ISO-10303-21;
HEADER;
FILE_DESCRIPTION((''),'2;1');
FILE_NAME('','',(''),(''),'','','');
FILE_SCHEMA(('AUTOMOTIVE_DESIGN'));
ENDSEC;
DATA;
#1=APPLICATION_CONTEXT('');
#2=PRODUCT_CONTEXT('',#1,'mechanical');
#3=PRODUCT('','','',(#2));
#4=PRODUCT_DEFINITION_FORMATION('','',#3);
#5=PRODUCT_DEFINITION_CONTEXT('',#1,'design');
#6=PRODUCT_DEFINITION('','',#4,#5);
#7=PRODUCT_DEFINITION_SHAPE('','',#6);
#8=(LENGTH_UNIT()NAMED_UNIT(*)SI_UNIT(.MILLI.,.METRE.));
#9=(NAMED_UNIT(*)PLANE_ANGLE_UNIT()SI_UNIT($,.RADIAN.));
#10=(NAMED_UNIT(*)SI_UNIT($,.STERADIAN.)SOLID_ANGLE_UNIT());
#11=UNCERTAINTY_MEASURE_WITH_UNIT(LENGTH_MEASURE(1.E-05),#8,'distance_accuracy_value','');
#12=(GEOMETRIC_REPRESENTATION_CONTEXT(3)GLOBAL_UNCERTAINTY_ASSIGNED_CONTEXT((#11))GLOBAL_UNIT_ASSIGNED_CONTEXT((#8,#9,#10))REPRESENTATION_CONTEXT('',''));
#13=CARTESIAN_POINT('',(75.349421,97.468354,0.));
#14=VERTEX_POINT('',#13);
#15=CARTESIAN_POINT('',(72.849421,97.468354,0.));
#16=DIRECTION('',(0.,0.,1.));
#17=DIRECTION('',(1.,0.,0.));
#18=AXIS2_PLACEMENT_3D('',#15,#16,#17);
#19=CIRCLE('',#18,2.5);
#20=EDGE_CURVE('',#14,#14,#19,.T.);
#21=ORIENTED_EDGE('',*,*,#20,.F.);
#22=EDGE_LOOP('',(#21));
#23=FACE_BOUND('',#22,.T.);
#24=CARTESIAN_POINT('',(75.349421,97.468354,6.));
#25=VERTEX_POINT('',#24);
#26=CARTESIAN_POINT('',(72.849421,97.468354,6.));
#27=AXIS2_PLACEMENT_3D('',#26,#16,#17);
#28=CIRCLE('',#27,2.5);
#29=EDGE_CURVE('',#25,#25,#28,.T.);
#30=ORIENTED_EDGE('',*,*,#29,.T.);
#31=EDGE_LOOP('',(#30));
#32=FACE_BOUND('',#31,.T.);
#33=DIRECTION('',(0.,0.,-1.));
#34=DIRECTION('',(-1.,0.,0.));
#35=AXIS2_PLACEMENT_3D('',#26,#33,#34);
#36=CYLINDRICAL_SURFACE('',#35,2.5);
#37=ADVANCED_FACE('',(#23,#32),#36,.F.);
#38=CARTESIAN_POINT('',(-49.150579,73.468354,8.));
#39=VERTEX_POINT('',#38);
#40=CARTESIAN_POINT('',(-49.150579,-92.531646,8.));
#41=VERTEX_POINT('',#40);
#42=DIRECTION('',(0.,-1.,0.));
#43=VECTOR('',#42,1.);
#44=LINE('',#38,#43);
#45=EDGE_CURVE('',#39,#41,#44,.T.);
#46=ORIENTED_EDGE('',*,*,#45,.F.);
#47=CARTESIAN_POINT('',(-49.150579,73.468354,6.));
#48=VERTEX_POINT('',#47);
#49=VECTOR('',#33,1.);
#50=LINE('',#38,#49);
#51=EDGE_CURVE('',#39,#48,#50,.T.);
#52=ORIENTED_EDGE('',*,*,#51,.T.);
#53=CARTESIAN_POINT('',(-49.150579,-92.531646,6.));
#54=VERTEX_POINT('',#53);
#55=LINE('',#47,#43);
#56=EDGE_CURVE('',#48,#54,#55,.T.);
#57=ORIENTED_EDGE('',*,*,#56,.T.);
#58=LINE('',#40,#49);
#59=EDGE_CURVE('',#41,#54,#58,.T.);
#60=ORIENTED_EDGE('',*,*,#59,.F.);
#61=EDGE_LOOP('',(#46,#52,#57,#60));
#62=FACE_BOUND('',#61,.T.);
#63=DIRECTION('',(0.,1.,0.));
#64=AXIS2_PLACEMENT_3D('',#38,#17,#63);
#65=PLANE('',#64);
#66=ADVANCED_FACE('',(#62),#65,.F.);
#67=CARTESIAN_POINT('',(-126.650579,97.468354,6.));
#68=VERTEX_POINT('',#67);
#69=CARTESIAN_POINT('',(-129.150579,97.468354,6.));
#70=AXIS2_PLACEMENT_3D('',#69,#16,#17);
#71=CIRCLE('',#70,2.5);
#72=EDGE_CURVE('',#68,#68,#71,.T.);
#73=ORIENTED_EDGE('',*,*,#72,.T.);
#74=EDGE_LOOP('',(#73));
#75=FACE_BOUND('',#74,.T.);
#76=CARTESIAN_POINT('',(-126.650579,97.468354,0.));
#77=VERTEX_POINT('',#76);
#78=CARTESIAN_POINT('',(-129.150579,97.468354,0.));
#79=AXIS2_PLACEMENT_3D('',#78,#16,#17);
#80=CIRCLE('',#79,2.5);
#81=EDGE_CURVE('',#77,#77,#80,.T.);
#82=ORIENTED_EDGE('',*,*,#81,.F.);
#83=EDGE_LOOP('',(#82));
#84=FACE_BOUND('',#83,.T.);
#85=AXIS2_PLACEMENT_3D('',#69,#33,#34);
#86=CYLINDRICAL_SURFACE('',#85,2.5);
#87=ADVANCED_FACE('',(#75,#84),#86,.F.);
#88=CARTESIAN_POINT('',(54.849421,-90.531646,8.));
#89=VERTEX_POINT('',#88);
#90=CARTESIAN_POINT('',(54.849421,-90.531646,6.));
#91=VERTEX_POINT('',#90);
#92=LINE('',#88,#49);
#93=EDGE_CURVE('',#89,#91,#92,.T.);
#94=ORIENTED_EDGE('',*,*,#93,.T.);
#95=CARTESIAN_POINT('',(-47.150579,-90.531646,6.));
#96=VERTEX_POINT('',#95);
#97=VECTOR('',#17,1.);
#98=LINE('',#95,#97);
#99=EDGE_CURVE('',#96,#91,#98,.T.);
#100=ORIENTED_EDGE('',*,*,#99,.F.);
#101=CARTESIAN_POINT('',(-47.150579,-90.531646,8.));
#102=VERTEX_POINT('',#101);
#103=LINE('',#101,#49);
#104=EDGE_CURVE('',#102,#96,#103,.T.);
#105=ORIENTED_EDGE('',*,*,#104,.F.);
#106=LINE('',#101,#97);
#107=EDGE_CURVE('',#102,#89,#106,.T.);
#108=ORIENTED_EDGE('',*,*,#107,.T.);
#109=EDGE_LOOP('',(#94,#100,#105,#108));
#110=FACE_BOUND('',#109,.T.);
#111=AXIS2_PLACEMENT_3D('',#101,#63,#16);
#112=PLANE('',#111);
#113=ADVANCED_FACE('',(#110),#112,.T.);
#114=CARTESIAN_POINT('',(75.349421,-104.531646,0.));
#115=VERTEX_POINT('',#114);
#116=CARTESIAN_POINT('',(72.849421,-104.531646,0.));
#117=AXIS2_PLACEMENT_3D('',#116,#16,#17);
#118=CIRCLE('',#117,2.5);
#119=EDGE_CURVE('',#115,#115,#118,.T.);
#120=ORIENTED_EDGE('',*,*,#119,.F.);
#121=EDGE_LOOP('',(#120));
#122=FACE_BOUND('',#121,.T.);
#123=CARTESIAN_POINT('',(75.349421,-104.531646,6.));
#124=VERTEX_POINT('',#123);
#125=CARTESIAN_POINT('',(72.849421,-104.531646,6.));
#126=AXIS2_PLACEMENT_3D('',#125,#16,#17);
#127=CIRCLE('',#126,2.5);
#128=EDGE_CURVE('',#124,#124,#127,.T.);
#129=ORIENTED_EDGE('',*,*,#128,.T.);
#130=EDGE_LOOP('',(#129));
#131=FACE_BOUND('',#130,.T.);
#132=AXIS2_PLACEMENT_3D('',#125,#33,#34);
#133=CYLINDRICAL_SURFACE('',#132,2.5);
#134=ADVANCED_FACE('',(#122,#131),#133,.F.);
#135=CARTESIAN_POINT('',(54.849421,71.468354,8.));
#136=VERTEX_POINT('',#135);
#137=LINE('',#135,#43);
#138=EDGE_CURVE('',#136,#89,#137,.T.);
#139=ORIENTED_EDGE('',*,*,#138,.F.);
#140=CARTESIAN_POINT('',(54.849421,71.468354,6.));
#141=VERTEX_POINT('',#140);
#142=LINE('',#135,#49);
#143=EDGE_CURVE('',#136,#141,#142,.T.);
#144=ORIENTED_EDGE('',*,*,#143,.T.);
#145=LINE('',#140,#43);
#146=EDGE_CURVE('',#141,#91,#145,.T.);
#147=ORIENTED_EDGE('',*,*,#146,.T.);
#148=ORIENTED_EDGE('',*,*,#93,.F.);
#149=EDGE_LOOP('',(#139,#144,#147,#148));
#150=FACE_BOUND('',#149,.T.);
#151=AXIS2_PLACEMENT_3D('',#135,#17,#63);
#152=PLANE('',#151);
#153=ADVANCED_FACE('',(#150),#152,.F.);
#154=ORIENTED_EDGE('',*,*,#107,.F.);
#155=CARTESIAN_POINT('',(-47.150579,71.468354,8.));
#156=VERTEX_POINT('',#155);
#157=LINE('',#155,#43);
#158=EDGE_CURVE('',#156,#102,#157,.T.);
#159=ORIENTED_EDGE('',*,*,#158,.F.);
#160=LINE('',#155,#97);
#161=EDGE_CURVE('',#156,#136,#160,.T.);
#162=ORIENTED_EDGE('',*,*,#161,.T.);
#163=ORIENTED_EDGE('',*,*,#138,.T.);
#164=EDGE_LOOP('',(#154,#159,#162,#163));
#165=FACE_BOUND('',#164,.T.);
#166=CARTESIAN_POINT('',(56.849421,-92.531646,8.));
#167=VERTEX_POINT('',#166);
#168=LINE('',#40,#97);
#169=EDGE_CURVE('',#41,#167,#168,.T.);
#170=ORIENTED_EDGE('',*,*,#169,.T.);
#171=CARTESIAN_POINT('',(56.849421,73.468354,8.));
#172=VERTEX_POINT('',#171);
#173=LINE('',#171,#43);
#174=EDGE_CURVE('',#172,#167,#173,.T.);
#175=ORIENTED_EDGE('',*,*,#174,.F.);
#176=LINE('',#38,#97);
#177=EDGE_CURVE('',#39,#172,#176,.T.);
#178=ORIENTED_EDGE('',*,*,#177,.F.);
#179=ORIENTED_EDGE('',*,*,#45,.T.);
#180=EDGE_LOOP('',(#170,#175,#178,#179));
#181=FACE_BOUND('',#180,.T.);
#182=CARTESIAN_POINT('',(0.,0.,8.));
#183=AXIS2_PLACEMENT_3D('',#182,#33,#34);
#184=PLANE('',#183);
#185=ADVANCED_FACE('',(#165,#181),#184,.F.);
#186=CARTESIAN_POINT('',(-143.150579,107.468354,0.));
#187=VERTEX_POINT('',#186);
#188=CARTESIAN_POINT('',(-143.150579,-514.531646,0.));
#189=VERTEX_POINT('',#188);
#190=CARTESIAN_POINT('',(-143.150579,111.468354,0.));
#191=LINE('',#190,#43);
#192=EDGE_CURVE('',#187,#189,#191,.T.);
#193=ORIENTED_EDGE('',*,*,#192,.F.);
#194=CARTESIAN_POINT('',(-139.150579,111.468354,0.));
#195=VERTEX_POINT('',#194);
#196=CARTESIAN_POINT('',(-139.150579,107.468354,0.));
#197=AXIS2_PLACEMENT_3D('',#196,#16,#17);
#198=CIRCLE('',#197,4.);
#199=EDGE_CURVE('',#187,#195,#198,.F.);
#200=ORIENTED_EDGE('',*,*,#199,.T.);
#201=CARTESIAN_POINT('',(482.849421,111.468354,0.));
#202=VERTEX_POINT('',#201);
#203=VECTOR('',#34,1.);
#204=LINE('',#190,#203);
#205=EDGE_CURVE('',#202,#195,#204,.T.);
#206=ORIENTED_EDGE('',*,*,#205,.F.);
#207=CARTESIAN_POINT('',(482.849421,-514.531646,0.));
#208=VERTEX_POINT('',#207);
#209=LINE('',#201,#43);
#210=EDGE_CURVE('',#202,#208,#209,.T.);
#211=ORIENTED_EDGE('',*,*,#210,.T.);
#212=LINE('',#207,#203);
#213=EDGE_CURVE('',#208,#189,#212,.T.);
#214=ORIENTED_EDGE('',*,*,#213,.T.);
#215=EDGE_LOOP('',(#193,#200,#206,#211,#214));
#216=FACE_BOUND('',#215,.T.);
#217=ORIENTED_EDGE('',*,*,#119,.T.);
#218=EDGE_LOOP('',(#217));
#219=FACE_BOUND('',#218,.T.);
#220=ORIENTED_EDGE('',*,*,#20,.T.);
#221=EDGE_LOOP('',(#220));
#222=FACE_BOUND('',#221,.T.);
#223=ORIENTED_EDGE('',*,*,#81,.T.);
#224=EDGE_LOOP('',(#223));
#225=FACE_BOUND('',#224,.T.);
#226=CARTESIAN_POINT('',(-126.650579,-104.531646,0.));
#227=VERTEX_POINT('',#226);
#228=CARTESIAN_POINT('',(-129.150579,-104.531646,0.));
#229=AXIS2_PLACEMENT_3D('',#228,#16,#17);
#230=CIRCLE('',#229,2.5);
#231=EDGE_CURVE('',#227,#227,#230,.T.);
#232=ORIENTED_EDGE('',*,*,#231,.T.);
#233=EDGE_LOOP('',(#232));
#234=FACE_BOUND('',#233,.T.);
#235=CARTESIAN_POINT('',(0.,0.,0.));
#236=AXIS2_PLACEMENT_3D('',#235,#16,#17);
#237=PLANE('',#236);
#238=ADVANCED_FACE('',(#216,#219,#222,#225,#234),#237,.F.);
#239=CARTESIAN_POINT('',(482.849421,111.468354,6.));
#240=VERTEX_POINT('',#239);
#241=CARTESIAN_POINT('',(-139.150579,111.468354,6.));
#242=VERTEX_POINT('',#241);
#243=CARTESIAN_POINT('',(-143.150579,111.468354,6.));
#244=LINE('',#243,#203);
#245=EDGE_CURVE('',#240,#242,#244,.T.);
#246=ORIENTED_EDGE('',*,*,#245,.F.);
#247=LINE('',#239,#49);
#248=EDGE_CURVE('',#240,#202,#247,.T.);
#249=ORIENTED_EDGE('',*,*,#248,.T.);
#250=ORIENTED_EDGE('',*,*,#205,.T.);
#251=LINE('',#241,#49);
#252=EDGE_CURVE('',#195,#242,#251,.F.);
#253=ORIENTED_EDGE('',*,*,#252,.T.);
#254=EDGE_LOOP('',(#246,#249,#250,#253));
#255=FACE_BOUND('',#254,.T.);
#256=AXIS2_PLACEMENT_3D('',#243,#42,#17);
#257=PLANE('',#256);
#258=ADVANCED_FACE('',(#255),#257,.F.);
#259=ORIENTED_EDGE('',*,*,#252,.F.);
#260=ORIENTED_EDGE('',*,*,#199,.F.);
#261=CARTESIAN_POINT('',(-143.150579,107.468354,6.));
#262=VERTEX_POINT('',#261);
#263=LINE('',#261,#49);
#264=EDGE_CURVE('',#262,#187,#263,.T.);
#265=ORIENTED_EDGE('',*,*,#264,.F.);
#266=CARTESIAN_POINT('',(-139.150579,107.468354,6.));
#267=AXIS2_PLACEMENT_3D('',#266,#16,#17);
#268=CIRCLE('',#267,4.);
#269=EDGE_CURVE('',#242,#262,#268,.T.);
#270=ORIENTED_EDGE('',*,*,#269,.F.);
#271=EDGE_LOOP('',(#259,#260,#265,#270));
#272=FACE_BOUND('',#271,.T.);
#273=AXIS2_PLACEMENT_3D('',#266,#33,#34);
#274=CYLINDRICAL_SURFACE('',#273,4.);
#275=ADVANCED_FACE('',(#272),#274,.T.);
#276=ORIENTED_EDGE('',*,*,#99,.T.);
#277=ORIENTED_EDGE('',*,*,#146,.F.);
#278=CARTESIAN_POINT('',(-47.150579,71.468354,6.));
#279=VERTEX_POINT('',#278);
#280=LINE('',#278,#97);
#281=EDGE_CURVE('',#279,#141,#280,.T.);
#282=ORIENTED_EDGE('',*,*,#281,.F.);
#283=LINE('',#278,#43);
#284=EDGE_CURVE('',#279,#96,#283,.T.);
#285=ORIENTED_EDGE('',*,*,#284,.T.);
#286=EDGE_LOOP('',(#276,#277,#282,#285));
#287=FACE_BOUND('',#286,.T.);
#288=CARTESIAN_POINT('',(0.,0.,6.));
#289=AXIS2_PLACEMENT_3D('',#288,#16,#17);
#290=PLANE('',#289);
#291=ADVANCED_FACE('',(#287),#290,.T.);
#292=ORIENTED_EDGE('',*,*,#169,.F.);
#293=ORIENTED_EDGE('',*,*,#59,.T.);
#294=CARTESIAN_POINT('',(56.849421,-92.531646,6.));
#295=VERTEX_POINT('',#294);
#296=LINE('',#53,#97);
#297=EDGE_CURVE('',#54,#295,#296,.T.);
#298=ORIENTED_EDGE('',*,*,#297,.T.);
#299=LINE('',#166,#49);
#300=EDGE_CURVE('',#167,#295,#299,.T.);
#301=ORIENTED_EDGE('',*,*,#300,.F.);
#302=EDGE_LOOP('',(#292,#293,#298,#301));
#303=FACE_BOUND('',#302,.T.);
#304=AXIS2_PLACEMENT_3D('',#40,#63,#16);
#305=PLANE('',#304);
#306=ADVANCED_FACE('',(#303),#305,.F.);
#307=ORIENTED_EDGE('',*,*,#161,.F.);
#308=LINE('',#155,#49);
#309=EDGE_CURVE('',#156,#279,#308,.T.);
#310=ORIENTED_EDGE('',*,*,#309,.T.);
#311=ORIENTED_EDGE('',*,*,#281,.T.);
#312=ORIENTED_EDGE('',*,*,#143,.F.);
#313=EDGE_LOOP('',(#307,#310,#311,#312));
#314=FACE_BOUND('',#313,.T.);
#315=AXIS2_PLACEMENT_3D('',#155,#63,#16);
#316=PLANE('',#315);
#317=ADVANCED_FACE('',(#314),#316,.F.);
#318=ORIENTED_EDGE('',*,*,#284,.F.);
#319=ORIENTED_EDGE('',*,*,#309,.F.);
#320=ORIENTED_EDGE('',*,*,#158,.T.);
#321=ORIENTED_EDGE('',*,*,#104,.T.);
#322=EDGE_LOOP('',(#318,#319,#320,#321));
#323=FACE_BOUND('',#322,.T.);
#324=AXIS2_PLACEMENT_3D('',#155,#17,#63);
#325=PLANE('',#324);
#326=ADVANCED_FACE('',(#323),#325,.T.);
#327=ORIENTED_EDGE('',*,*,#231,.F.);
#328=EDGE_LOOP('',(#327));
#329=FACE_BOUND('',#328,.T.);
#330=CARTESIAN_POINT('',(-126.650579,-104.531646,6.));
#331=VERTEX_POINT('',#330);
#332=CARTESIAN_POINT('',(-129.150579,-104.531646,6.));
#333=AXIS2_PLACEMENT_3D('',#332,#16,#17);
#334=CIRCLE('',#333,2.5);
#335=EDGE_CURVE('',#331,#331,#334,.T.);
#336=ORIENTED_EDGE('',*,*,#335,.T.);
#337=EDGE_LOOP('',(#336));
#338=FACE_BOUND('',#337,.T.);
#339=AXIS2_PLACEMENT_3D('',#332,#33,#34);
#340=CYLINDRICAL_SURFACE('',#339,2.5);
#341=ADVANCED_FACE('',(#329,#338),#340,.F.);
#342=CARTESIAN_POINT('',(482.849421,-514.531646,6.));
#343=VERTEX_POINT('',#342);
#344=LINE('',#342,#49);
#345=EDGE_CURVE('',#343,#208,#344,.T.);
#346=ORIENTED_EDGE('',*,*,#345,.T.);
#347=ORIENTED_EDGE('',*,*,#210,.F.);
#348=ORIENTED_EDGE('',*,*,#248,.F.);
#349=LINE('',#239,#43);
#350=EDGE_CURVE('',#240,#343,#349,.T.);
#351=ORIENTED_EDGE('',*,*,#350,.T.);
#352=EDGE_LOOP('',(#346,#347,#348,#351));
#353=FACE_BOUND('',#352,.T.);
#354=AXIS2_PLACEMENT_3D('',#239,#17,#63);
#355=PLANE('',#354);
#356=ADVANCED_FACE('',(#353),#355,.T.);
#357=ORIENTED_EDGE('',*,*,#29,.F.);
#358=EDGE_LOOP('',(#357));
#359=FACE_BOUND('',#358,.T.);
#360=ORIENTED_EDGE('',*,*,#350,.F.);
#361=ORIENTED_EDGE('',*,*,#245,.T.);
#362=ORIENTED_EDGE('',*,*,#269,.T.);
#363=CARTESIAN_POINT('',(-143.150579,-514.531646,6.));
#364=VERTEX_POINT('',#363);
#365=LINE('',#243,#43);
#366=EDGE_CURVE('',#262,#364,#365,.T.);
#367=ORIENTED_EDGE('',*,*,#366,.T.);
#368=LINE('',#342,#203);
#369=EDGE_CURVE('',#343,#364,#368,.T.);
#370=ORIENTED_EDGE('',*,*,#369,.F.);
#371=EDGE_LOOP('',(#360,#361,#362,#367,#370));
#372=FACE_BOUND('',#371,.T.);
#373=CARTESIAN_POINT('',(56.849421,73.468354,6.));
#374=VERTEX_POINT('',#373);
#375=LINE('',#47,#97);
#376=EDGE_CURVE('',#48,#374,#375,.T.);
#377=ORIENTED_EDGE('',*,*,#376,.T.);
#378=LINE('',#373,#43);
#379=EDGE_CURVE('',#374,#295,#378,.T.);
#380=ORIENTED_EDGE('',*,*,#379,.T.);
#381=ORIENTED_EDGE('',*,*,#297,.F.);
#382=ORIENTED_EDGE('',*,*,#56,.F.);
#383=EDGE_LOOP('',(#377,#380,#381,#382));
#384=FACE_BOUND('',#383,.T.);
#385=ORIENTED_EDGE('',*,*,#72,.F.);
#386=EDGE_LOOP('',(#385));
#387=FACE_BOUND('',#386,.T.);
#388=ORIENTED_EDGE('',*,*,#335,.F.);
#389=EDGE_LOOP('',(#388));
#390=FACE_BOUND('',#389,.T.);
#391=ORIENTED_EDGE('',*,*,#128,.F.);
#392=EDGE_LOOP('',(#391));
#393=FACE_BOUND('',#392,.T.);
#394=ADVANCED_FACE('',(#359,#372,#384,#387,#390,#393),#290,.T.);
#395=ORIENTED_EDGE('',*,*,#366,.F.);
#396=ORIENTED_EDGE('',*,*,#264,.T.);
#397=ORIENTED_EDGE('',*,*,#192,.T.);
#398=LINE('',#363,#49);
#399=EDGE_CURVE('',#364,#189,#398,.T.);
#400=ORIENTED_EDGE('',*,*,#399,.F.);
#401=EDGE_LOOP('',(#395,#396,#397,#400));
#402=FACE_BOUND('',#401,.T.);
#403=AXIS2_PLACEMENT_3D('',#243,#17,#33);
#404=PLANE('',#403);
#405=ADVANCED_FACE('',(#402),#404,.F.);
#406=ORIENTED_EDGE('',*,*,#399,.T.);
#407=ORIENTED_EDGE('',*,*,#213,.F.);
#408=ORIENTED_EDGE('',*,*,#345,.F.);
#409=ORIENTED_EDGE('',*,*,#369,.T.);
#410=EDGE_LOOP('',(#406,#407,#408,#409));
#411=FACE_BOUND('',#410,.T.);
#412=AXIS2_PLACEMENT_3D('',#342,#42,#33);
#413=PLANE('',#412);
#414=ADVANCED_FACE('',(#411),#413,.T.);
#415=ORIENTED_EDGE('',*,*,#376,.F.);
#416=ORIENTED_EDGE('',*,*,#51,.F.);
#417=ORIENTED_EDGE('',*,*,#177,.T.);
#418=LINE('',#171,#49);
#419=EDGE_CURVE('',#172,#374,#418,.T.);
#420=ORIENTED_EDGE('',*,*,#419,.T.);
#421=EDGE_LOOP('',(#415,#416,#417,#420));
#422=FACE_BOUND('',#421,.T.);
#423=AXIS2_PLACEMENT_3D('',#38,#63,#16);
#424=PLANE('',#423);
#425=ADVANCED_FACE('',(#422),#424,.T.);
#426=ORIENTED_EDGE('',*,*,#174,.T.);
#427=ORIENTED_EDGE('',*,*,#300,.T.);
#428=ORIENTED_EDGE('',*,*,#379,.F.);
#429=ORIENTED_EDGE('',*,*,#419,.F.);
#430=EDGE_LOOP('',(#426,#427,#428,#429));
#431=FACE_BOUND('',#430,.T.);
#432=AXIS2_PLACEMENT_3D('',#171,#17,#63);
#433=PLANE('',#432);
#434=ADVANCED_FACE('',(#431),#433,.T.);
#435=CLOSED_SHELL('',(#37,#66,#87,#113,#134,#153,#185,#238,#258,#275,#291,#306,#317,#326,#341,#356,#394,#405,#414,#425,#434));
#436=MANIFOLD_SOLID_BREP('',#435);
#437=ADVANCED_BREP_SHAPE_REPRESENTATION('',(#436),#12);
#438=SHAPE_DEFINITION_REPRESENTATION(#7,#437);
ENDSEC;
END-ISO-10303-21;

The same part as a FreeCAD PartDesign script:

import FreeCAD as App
import Part
import Sketcher
Q = App.Units.Quantity


def edges_at(feature, points):
    """Names of the edges that pass closest to the given points."""
    edges = feature.Shape.Edges
    near = lambda p: min(range(len(edges)), key=lambda i: edges[i].distToShape(Part.Vertex(*p))[0])
    return sorted({f"Edge{near(p) + 1}" for p in points})


def add_polygon(sketch, points):
    """Adds a closed chain of lines whose ends are joined by coincident constraints."""
    first, n = sketch.GeometryCount, len(points)
    for a, b in zip(points, points[1:] + points[:1]):
        sketch.addGeometry(Part.LineSegment(App.Vector(*a, 0), App.Vector(*b, 0)), False)
    for i in range(n):
        sketch.addConstraint(Sketcher.Constraint("Coincident", first + i, 2, first + (i + 1) % n, 1))

doc = App.newDocument("Part")
params = doc.addObject("Spreadsheet::Sheet", "Params")
for row, (alias, value) in enumerate([
    ("sketch1_diameter", "5 mm"),
    ("sketch1_width", "230 mm"),
    ("pad1_length", "6 mm"),
    ("fillet_radius", "4 mm"),
    ("sketch2_width", "106 mm"),
    ("sketch2_width2", "102 mm"),
    ("sketch2_height", "166 mm"),
    ("sketch2_height2", "162 mm"),
    ("pad2_length", "2 mm"),
    ("sketch3_width", "400 mm"),
    ("sketch3_width2", "626 mm"),
    ("pad3_length", "6 mm"),
], start=1):
    params.set(f"A{row}", alias)
    params.set(f"B{row}", "=" + value)
    params.setAlias(f"B{row}", alias)

body = doc.addObject("PartDesign::Body", "Body")

sketch1 = body.newObject("Sketcher::SketchObject", "Sketch")
sketch1.AttachmentSupport = (doc.getObject("XY_Plane"), [""])
sketch1.MapMode = "FlatFace"
add_polygon(sketch1, [(-143.2, 111.5), (-143.2, -118.5), (86.8, -118.5), (86.8, 111.5)])
sketch1.addGeometry(Part.Circle(App.Vector(-129.2, -104.5, 0), App.Vector(0, 0, 1), 2.5), False)
sketch1.addGeometry(Part.Circle(App.Vector(72.8, -104.5, 0), App.Vector(0, 0, 1), 2.5), False)
sketch1.addGeometry(Part.Circle(App.Vector(-129.2, 97.5, 0), App.Vector(0, 0, 1), 2.5), False)
sketch1.addGeometry(Part.Circle(App.Vector(72.8, 97.5, 0), App.Vector(0, 0, 1), 2.5), False)
sketch1.addConstraint([
    Sketcher.Constraint("Vertical", 0),
    Sketcher.Constraint("Horizontal", 1),
    Sketcher.Constraint("Vertical", 2),
    Sketcher.Constraint("Horizontal", 3),
    Sketcher.Constraint("Equal", 4, 5),
    Sketcher.Constraint("Equal", 5, 6),
    Sketcher.Constraint("Equal", 6, 7),
    Sketcher.Constraint("Horizontal", 4, 3, 5, 3),
    Sketcher.Constraint("Horizontal", 6, 3, 7, 3),
    Sketcher.Constraint("Vertical", 4, 3, 6, 3),
    Sketcher.Constraint("Vertical", 5, 3, 7, 3),
    Sketcher.Constraint("Equal", 3, 0),
    Sketcher.Constraint("Diameter", 4, Q("5 mm")),
    Sketcher.Constraint("DistanceX", 1, 1, 1, 2, Q("230 mm")),
    Sketcher.Constraint("DistanceX", 4, 3, 5, 3, Q("202 mm")),
    Sketcher.Constraint("DistanceY", 4, 3, 6, 3, Q("202 mm")),
    Sketcher.Constraint("DistanceX", 0, 2, 4, 3, Q("14 mm")),
    Sketcher.Constraint("DistanceY", 0, 2, 4, 3, Q("14 mm")),
    Sketcher.Constraint("DistanceX", 4, 3, -1, 1, Q("129.150579 mm")),
    Sketcher.Constraint("DistanceY", 4, 3, -1, 1, Q("104.531646 mm")),
])
sketch1.setExpression("Constraints[16]", "Params.sketch1_diameter")
sketch1.setExpression("Constraints[17]", "Params.sketch1_width")
pad1 = body.newObject("PartDesign::Pad", "Pad")
pad1.Profile = sketch1
pad1.setExpression("Length", "Params.pad1_length")
doc.recompute()

fillet = body.newObject("PartDesign::Fillet", "Fillet")
fillet.Base = (pad1, edges_at(pad1, [
    (-143.151, 111.468, 3),
    (86.849, 111.468, 3),
    (86.849, -118.532, 3),
    (-143.151, -118.532, 3),
]))
fillet.setExpression("Radius", "Params.fillet_radius")

sketch2 = body.newObject("Sketcher::SketchObject", "Sketch001")
sketch2.AttachmentSupport = (doc.getObject("XY_Plane"), [""])
sketch2.MapMode = "FlatFace"
sketch2.AttachmentOffset = App.Placement(App.Vector(0, 0, 6), App.Rotation())
add_polygon(sketch2, [(-49, 73), (-49, -93), (57, -93), (57, 73)])
add_polygon(sketch2, [(55, -91), (-47, -91), (-47, 71), (55, 71)])
sketch2.addConstraint([
    Sketcher.Constraint("Vertical", 0),
    Sketcher.Constraint("Horizontal", 1),
    Sketcher.Constraint("Vertical", 2),
    Sketcher.Constraint("Horizontal", 3),
    Sketcher.Constraint("Horizontal", 4),
    Sketcher.Constraint("Vertical", 5),
    Sketcher.Constraint("Horizontal", 6),
    Sketcher.Constraint("Vertical", 7),
    Sketcher.Constraint("DistanceX", 1, 1, 1, 2, Q("106 mm")),
    Sketcher.Constraint("DistanceX", 4, 2, 4, 1, Q("102 mm")),
    Sketcher.Constraint("DistanceY", 0, 2, 0, 1, Q("166 mm")),
    Sketcher.Constraint("DistanceY", 5, 1, 5, 2, Q("162 mm")),
    Sketcher.Constraint("DistanceX", 0, 2, 4, 2, Q("2 mm")),
    Sketcher.Constraint("DistanceY", 0, 2, 4, 2, Q("2 mm")),
    Sketcher.Constraint("DistanceX", 0, 2, -1, 1, Q("49.150579 mm")),
    Sketcher.Constraint("DistanceY", 0, 2, -1, 1, Q("92.531646 mm")),
])
sketch2.setExpression("Constraints[16]", "Params.sketch2_width")
sketch2.setExpression("Constraints[17]", "Params.sketch2_width2")
sketch2.setExpression("Constraints[18]", "Params.sketch2_height")
sketch2.setExpression("Constraints[19]", "Params.sketch2_height2")
pad2 = body.newObject("PartDesign::Pad", "Pad001")
pad2.Profile = sketch2
pad2.setExpression("Length", "Params.pad2_length")

sketch3 = body.newObject("Sketcher::SketchObject", "Sketch002")
sketch3.AttachmentSupport = (doc.getObject("XY_Plane"), [""])
sketch3.MapMode = "FlatFace"
add_polygon(sketch3, [(83, 111), (483, 111), (483, -515), (-143, -515), (-143, -115), (83, -115)])
sketch3.addConstraint([
    Sketcher.Constraint("Horizontal", 0),
    Sketcher.Constraint("Vertical", 1),
    Sketcher.Constraint("Horizontal", 2),
    Sketcher.Constraint("Vertical", 3),
    Sketcher.Constraint("Horizontal", 4),
    Sketcher.Constraint("Vertical", 5),
    Sketcher.Constraint("Equal", 2, 1),
    Sketcher.Constraint("Equal", 0, 3),
    Sketcher.Constraint("DistanceX", 0, 1, 0, 2, Q("400 mm")),
    Sketcher.Constraint("DistanceX", 2, 2, 2, 1, Q("626 mm")),
    Sketcher.Constraint("DistanceX", -1, 1, 0, 2, Q("482.849421 mm")),
    Sketcher.Constraint("DistanceY", -1, 1, 0, 2, Q("111.468354 mm")),
])
sketch3.setExpression("Constraints[14]", "Params.sketch3_width")
sketch3.setExpression("Constraints[15]", "Params.sketch3_width2")
pad3 = body.newObject("PartDesign::Pad", "Pad002")
pad3.Profile = sketch3
pad3.setExpression("Length", "Params.pad3_length")

doc.recompute()
